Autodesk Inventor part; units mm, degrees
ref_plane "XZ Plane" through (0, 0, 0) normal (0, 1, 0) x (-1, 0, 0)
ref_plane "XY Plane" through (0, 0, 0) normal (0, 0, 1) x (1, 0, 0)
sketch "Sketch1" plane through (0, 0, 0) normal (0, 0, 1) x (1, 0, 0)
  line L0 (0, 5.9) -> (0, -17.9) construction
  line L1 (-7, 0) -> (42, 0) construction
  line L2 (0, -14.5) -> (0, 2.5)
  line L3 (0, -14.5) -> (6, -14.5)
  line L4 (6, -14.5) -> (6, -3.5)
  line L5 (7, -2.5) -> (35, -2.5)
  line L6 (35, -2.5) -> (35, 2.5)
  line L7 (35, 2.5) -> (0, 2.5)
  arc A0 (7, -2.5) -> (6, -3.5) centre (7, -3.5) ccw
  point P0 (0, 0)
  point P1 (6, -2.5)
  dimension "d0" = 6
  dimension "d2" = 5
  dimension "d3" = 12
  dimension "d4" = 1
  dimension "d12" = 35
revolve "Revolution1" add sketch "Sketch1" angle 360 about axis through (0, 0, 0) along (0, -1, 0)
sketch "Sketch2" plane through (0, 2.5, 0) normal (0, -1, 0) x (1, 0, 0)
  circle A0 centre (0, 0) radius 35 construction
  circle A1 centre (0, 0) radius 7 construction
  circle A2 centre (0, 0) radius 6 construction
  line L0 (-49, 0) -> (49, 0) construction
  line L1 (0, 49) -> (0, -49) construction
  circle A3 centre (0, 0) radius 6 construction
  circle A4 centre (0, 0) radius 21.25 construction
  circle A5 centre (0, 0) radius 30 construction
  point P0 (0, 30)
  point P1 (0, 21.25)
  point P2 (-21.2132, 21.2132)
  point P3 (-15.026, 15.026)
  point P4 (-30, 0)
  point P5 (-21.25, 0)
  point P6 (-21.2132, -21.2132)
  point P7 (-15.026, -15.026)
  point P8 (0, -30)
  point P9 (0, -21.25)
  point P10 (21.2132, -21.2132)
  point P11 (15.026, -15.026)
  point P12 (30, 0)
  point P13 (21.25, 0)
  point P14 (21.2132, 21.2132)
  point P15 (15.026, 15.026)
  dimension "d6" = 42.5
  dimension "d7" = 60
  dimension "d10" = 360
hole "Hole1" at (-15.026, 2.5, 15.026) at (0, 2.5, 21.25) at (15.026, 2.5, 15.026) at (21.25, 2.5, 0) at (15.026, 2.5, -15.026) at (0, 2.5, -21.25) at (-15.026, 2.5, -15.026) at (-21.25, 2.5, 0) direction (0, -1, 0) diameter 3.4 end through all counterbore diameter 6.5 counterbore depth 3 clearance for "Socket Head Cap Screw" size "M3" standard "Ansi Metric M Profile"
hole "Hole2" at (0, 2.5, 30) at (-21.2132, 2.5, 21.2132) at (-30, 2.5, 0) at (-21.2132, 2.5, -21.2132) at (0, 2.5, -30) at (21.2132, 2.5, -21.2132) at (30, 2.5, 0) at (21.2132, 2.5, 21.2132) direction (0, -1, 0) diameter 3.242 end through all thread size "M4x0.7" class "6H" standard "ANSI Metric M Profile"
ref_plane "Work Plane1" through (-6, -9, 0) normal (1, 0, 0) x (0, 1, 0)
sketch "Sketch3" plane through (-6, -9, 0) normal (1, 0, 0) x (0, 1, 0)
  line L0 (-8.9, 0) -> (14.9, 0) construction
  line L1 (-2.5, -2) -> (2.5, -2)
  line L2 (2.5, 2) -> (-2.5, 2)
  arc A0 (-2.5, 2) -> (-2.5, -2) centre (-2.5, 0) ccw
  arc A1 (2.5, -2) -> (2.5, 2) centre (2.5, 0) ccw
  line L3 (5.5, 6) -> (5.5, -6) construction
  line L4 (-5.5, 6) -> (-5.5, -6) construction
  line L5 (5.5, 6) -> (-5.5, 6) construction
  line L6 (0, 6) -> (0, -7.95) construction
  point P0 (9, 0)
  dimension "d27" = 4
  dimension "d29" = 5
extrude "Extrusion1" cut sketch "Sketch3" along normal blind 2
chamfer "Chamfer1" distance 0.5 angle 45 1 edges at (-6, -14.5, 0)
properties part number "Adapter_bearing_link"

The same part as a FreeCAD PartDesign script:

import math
import FreeCAD as App
import Part
import Sketcher

V = App.Vector


def edges_at(feature, points):
    """Names of the edges that pass closest to the given points."""
    edges = feature.Shape.Edges
    near = lambda p: min(range(len(edges)), key=lambda i: edges[i].distToShape(Part.Vertex(*p))[0])
    return sorted({f"Edge{near(p) + 1}" for p in points})

doc = App.newDocument("Part")
body = doc.addObject("PartDesign::Body", "Body")

# Sketch on XY plane
sketch1 = body.newObject("Sketcher::SketchObject", "Sketch")
sketch1.AttachmentSupport = (doc.getObject("XY_Plane"), [""])
sketch1.MapMode = "FlatFace"
sketch1.addGeometry(Part.LineSegment(V(0, 2.5, 0), V(0, -14.5, 0)), False)
sketch1.addGeometry(Part.LineSegment(V(0, -14.5, 0), V(6, -14.5, 0)), False)
sketch1.addGeometry(Part.LineSegment(V(6, -14.5, 0), V(6, -3.5, 0)), False)
sketch1.addGeometry(Part.ArcOfCircle(Part.Circle(V(7, -3.5, 0), V(0, 0, 1), 1), math.radians(90), math.radians(180)), False)
sketch1.addGeometry(Part.LineSegment(V(7, -2.5, 0), V(35, -2.5, 0)), False)
sketch1.addGeometry(Part.LineSegment(V(35, -2.5, 0), V(35, 2.5, 0)), False)
sketch1.addGeometry(Part.LineSegment(V(35, 2.5, 0), V(0, 2.5, 0)), False)
sketch1.addConstraint(Sketcher.Constraint("Coincident", 0, 2, 1, 1))
sketch1.addConstraint(Sketcher.Constraint("Coincident", 1, 2, 2, 1))
sketch1.addConstraint(Sketcher.Constraint("Tangent", 2, 2, 3, 2))
sketch1.addConstraint(Sketcher.Constraint("Tangent", 3, 1, 4, 1))
sketch1.addConstraint(Sketcher.Constraint("Coincident", 4, 2, 5, 1))
sketch1.addConstraint(Sketcher.Constraint("Coincident", 5, 2, 6, 1))
sketch1.addConstraint(Sketcher.Constraint("Coincident", 6, 2, 0, 1))
sketch1.addConstraint(Sketcher.Constraint("Vertical", 0))
sketch1.addConstraint(Sketcher.Constraint("Horizontal", 1))
sketch1.addConstraint(Sketcher.Constraint("Vertical", 2))
sketch1.addConstraint(Sketcher.Constraint("Horizontal", 4))
sketch1.addConstraint(Sketcher.Constraint("Vertical", 5))
sketch1.addConstraint(Sketcher.Constraint("Horizontal", 6))
sketch1.addConstraint(Sketcher.Constraint("PointOnObject", 0, 2, -2))
sketch1.addConstraint(Sketcher.Constraint("Radius", 3, 1.0))
sketch1.addConstraint(Sketcher.Constraint("DistanceX", 1, 1, 1, 2, 6.0))
sketch1.addConstraint(Sketcher.Constraint("DistanceX", 6, 2, 6, 1, 35.0))
sketch1.addConstraint(Sketcher.Constraint("DistanceY", 5, 1, 5, 2, 5.0))
sketch1.addConstraint(Sketcher.Constraint("DistanceY", 1, 2, 3, 1, 12.0))
sketch1.addConstraint(Sketcher.Constraint("DistanceY", 3, 3, -1, 1, 3.5))
revolution = body.newObject("PartDesign::Revolution", "Revolution")
revolution.Profile = sketch1
revolution.ReferenceAxis = (sketch1, ["V_Axis"])
revolution.Angle = 360

# Sketch on XZ plane
sketch2 = body.newObject("Sketcher::SketchObject", "Sketch001")
sketch2.AttachmentSupport = (doc.getObject("XZ_Plane"), [""])
sketch2.MapMode = "FlatFace"
sketch2.AttachmentOffset = App.Placement(V(0, 0, -2.5), App.Rotation())
sketch2.addGeometry(Part.Circle(V(-15, 15, 0), V(0, 0, 1), 1.7), False)
sketch2.addGeometry(Part.Circle(V(0, 21.2, 0), V(0, 0, 1), 1.7), False)
sketch2.addGeometry(Part.Circle(V(15, 15, 0), V(0, 0, 1), 1.7), False)
sketch2.addGeometry(Part.Circle(V(21.2, 0, 0), V(0, 0, 1), 1.7), False)
sketch2.addGeometry(Part.Circle(V(15, -15, 0), V(0, 0, 1), 1.7), False)
sketch2.addGeometry(Part.Circle(V(0, -21.2, 0), V(0, 0, 1), 1.7), False)
sketch2.addGeometry(Part.Circle(V(-15, -15, 0), V(0, 0, 1), 1.7), False)
sketch2.addGeometry(Part.Circle(V(-21.2, 0, 0), V(0, 0, 1), 1.7), False)
sketch2.addConstraint(Sketcher.Constraint("Equal", 0, 1))
sketch2.addConstraint(Sketcher.Constraint("Equal", 1, 2))
sketch2.addConstraint(Sketcher.Constraint("Equal", 2, 3))
sketch2.addConstraint(Sketcher.Constraint("Equal", 3, 4))
sketch2.addConstraint(Sketcher.Constraint("Equal", 4, 5))
sketch2.addConstraint(Sketcher.Constraint("Equal", 5, 6))
sketch2.addConstraint(Sketcher.Constraint("Equal", 6, 7))
sketch2.addConstraint(Sketcher.Constraint("Symmetric", 0, 3, 4, 3, -1, 1))
sketch2.addConstraint(Sketcher.Constraint("Symmetric", 1, 3, 5, 3, -1, 1))
sketch2.addConstraint(Sketcher.Constraint("Symmetric", 2, 3, 6, 3, -1, 1))
sketch2.addConstraint(Sketcher.Constraint("Symmetric", 3, 3, 7, 3, -1, 1))
sketch2.addConstraint(Sketcher.Constraint("Symmetric", 0, 3, 2, 3, -2))
sketch2.addConstraint(Sketcher.Constraint("PointOnObject", 1, 3, -2))
sketch2.addConstraint(Sketcher.Constraint("PointOnObject", 3, 3, -1))
sketch2.addConstraint(Sketcher.Constraint("Diameter", 0, 3.4))
sketch2.addConstraint(Sketcher.Constraint("DistanceY", 5, 3, 1, 3, 42.5))
sketch2.addConstraint(Sketcher.Constraint("DistanceX", -1, 1, 3, 3, 21.25))
sketch2.addConstraint(Sketcher.Constraint("DistanceX", 0, 3, -1, 1, 15.026))
sketch2.addConstraint(Sketcher.Constraint("DistanceY", -1, 1, 0, 3, 15.026))
doc.recompute()
hole = body.newObject("PartDesign::Hole", "Hole")
hole.Profile = sketch2
hole.ThreadType = "None"
hole.Diameter = 3.4
hole.DepthType = "ThroughAll"
hole.HoleCutType = "Counterbore"
hole.HoleCutDiameter = 6.5
hole.HoleCutDepth = 3
hole.Reversed = True

# Sketch on XZ plane
sketch3 = body.newObject("Sketcher::SketchObject", "Sketch002")
sketch3.AttachmentSupport = (doc.getObject("XZ_Plane"), [""])
sketch3.MapMode = "FlatFace"
sketch3.AttachmentOffset = App.Placement(V(0, 0, -2.5), App.Rotation())
sketch3.addGeometry(Part.Circle(V(0, 30, 0), V(0, 0, 1), 1.6), False)
sketch3.addGeometry(Part.Circle(V(-21.2, 21.2, 0), V(0, 0, 1), 1.6), False)
sketch3.addGeometry(Part.Circle(V(-30, 0, 0), V(0, 0, 1), 1.6), False)
sketch3.addGeometry(Part.Circle(V(-21.2, -21.2, 0), V(0, 0, 1), 1.6), False)
sketch3.addGeometry(Part.Circle(V(0, -30, 0), V(0, 0, 1), 1.6), False)
sketch3.addGeometry(Part.Circle(V(21.2, -21.2, 0), V(0, 0, 1), 1.6), False)
sketch3.addGeometry(Part.Circle(V(30, 0, 0), V(0, 0, 1), 1.6), False)
sketch3.addGeometry(Part.Circle(V(21.2, 21.2, 0), V(0, 0, 1), 1.6), False)
sketch3.addConstraint(Sketcher.Constraint("Equal", 0, 1))
sketch3.addConstraint(Sketcher.Constraint("Equal", 1, 2))
sketch3.addConstraint(Sketcher.Constraint("Equal", 2, 3))
sketch3.addConstraint(Sketcher.Constraint("Equal", 3, 4))
sketch3.addConstraint(Sketcher.Constraint("Equal", 4, 5))
sketch3.addConstraint(Sketcher.Constraint("Equal", 5, 6))
sketch3.addConstraint(Sketcher.Constraint("Equal", 6, 7))
sketch3.addConstraint(Sketcher.Constraint("Symmetric", 0, 3, 4, 3, -1, 1))
sketch3.addConstraint(Sketcher.Constraint("Symmetric", 1, 3, 5, 3, -1, 1))
sketch3.addConstraint(Sketcher.Constraint("Symmetric", 2, 3, 6, 3, -1, 1))
sketch3.addConstraint(Sketcher.Constraint("Symmetric", 3, 3, 7, 3, -1, 1))
sketch3.addConstraint(Sketcher.Constraint("Symmetric", 3, 3, 5, 3, -2))
sketch3.addConstraint(Sketcher.Constraint("PointOnObject", 0, 3, -2))
sketch3.addConstraint(Sketcher.Constraint("PointOnObject", 2, 3, -1))
sketch3.addConstraint(Sketcher.Constraint("Diameter", 0, 3.242))
sketch3.addConstraint(Sketcher.Constraint("DistanceY", -1, 1, 0, 3, 30.0))
sketch3.addConstraint(Sketcher.Constraint("DistanceX", 2, 3, -1, 1, 30.0))
sketch3.addConstraint(Sketcher.Constraint("DistanceX", 1, 3, -1, 1, 21.2132))
sketch3.addConstraint(Sketcher.Constraint("DistanceY", -1, 1, 1, 3, 21.2132))
doc.recompute()
hole2 = body.newObject("PartDesign::Hole", "Hole001")
hole2.Profile = sketch3
hole2.ThreadType = "None"
hole2.Diameter = 3.242
hole2.DepthType = "ThroughAll"
hole2.Reversed = True

# Sketch on YZ plane
sketch4 = body.newObject("Sketcher::SketchObject", "Sketch003")
sketch4.AttachmentSupport = (doc.getObject("YZ_Plane"), [""])
sketch4.MapMode = "FlatFace"
sketch4.AttachmentOffset = App.Placement(V(0, 0, -6), App.Rotation())
sketch4.addGeometry(Part.ArcOfCircle(Part.Circle(V(-11.5, 0, 0), V(0, 0, 1), 2), math.radians(90), math.radians(270)), False)
sketch4.addGeometry(Part.LineSegment(V(-11.5, -2, 0), V(-6.5, -2, 0)), False)
sketch4.addGeometry(Part.ArcOfCircle(Part.Circle(V(-6.5, 0, 0), V(0, 0, 1), 2), math.radians(-90), math.radians(90)), False)
sketch4.addGeometry(Part.LineSegment(V(-6.5, 2, 0), V(-11.5, 2, 0)), False)
sketch4.addConstraint(Sketcher.Constraint("Tangent", 0, 2, 1, 1))
sketch4.addConstraint(Sketcher.Constraint("Tangent", 1, 2, 2, 1))
sketch4.addConstraint(Sketcher.Constraint("Tangent", 2, 2, 3, 1))
sketch4.addConstraint(Sketcher.Constraint("Tangent", 3, 2, 0, 1))
sketch4.addConstraint(Sketcher.Constraint("Horizontal", 1))
sketch4.addConstraint(Sketcher.Constraint("Horizontal", 3))
sketch4.addConstraint(Sketcher.Constraint("PointOnObject", 0, 3, -1))
sketch4.addConstraint(Sketcher.Constraint("Radius", 0, 2.0))
sketch4.addConstraint(Sketcher.Constraint("DistanceX", 1, 1, 1, 2, 5.0))
sketch4.addConstraint(Sketcher.Constraint("DistanceX", 0, 3, -1, 1, 11.5))
pocket1 = body.newObject("PartDesign::Pocket", "Pocket")
pocket1.Profile = sketch4
pocket1.Length = 2
pocket1.Reversed = True
doc.recompute()

chamfer = body.newObject("PartDesign::Chamfer", "Chamfer")
chamfer.Base = (pocket1, edges_at(pocket1, [(-6, -14.5, 0)]))
chamfer.Size = 0.5

doc.recompute()
